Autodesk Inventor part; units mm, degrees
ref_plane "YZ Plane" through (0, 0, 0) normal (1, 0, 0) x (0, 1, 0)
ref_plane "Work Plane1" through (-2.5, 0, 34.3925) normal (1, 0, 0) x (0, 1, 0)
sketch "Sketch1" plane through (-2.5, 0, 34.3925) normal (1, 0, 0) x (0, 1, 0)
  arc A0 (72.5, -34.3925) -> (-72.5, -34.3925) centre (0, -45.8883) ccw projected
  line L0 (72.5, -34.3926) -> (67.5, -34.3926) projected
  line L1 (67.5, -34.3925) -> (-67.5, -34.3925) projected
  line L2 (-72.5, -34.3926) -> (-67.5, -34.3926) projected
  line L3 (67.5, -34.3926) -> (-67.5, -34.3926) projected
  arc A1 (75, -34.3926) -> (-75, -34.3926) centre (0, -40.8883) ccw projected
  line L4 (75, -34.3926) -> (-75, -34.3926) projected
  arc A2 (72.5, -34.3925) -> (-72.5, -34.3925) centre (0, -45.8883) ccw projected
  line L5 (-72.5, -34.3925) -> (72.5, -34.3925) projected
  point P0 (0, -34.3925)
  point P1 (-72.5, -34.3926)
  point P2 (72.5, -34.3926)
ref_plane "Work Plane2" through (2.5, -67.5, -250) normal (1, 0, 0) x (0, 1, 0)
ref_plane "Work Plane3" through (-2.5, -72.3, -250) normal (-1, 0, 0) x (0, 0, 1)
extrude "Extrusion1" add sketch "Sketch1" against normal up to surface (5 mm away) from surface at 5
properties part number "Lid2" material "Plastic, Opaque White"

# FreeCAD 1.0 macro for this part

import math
import FreeCAD as App
import Part
import Sketcher
from FreeCAD import Vector
Q = App.Units.Quantity

doc = App.newDocument("Part")
params = doc.addObject("Spreadsheet::Sheet", "Params")
for row, (alias, value) in enumerate([
    ("sketch1_width", "5 mm"),
    ("sketch1_width2", "135 mm"),
    ("sketch1_width3", "2.5 mm"),
    ("pad1_length", "5 mm"),
], start=1):
    params.set(f"A{row}", alias)
    params.set(f"B{row}", "=" + value)
    params.setAlias(f"B{row}", alias)

body = doc.addObject("PartDesign::Body", "Body")

sketch1 = body.newObject("Sketcher::SketchObject", "Sketch")
sketch1.AttachmentSupport = (doc.getObject("YZ_Plane"), [""])
sketch1.MapMode = "FlatFace"
sketch1.AttachmentOffset = App.Placement(Vector(0, 0, 2.5), App.Rotation())
sketch1.addGeometry([
    Part.LineSegment(Vector(67.5, -0.0001, 0), Vector(72.5, 0, 0)),
    Part.LineSegment(Vector(72.5, -0.0001, 0), Vector(75, -0.0001, 0)),
    Part.ArcOfCircle(Part.Circle(Vector(0, -6.4958, 0), Vector(0, 0, 1), 75.280769), math.radians(4.949997), math.radians(175.050003)),
    Part.LineSegment(Vector(-75, -0.0001, 0), Vector(-72.5, -0.0001, 0)),
    Part.LineSegment(Vector(-72.5, 0, 0), Vector(-67.5, 0, 0)),
    Part.LineSegment(Vector(-67.5, 0, 0), Vector(67.5, -0.0001, 0)),
], False)
sketch1.addConstraint([
    Sketcher.Constraint("Coincident", 0, 2, 1, 1),
    Sketcher.Constraint("Coincident", 1, 2, 2, 1),
    Sketcher.Constraint("Coincident", 2, 2, 3, 1),
    Sketcher.Constraint("Coincident", 3, 2, 4, 1),
    Sketcher.Constraint("Coincident", 4, 2, 5, 1),
    Sketcher.Constraint("Coincident", 5, 2, 0, 1),
    Sketcher.Constraint("Horizontal", 0),
    Sketcher.Constraint("Horizontal", 1),
    Sketcher.Constraint("Horizontal", 3),
    Sketcher.Constraint("Horizontal", 4),
    Sketcher.Constraint("Horizontal", 5),
    Sketcher.Constraint("Symmetric", 1, 2, 2, 2, -1, 1),
    Sketcher.Constraint("Equal", 1, 3),
    Sketcher.Constraint("Equal", 0, 4),
    Sketcher.Constraint("DistanceX", 0, 1, 0, 2, Q("5 mm")),
    Sketcher.Constraint("DistanceX", 5, 1, 5, 2, Q("135 mm")),
    Sketcher.Constraint("DistanceX", 1, 1, 1, 2, Q("2.5 mm")),
    Sketcher.Constraint("Radius", 2, Q("75.2808 mm")),
])
sketch1.setExpression("Constraints[14]", "Params.sketch1_width")
sketch1.setExpression("Constraints[15]", "Params.sketch1_width2")
sketch1.setExpression("Constraints[16]", "Params.sketch1_width3")
pad1 = body.newObject("PartDesign::Pad", "Pad")
pad1.Profile = sketch1
pad1.setExpression("Length", "Params.pad1_length")
pad1.Reversed = True

doc.recompute()
